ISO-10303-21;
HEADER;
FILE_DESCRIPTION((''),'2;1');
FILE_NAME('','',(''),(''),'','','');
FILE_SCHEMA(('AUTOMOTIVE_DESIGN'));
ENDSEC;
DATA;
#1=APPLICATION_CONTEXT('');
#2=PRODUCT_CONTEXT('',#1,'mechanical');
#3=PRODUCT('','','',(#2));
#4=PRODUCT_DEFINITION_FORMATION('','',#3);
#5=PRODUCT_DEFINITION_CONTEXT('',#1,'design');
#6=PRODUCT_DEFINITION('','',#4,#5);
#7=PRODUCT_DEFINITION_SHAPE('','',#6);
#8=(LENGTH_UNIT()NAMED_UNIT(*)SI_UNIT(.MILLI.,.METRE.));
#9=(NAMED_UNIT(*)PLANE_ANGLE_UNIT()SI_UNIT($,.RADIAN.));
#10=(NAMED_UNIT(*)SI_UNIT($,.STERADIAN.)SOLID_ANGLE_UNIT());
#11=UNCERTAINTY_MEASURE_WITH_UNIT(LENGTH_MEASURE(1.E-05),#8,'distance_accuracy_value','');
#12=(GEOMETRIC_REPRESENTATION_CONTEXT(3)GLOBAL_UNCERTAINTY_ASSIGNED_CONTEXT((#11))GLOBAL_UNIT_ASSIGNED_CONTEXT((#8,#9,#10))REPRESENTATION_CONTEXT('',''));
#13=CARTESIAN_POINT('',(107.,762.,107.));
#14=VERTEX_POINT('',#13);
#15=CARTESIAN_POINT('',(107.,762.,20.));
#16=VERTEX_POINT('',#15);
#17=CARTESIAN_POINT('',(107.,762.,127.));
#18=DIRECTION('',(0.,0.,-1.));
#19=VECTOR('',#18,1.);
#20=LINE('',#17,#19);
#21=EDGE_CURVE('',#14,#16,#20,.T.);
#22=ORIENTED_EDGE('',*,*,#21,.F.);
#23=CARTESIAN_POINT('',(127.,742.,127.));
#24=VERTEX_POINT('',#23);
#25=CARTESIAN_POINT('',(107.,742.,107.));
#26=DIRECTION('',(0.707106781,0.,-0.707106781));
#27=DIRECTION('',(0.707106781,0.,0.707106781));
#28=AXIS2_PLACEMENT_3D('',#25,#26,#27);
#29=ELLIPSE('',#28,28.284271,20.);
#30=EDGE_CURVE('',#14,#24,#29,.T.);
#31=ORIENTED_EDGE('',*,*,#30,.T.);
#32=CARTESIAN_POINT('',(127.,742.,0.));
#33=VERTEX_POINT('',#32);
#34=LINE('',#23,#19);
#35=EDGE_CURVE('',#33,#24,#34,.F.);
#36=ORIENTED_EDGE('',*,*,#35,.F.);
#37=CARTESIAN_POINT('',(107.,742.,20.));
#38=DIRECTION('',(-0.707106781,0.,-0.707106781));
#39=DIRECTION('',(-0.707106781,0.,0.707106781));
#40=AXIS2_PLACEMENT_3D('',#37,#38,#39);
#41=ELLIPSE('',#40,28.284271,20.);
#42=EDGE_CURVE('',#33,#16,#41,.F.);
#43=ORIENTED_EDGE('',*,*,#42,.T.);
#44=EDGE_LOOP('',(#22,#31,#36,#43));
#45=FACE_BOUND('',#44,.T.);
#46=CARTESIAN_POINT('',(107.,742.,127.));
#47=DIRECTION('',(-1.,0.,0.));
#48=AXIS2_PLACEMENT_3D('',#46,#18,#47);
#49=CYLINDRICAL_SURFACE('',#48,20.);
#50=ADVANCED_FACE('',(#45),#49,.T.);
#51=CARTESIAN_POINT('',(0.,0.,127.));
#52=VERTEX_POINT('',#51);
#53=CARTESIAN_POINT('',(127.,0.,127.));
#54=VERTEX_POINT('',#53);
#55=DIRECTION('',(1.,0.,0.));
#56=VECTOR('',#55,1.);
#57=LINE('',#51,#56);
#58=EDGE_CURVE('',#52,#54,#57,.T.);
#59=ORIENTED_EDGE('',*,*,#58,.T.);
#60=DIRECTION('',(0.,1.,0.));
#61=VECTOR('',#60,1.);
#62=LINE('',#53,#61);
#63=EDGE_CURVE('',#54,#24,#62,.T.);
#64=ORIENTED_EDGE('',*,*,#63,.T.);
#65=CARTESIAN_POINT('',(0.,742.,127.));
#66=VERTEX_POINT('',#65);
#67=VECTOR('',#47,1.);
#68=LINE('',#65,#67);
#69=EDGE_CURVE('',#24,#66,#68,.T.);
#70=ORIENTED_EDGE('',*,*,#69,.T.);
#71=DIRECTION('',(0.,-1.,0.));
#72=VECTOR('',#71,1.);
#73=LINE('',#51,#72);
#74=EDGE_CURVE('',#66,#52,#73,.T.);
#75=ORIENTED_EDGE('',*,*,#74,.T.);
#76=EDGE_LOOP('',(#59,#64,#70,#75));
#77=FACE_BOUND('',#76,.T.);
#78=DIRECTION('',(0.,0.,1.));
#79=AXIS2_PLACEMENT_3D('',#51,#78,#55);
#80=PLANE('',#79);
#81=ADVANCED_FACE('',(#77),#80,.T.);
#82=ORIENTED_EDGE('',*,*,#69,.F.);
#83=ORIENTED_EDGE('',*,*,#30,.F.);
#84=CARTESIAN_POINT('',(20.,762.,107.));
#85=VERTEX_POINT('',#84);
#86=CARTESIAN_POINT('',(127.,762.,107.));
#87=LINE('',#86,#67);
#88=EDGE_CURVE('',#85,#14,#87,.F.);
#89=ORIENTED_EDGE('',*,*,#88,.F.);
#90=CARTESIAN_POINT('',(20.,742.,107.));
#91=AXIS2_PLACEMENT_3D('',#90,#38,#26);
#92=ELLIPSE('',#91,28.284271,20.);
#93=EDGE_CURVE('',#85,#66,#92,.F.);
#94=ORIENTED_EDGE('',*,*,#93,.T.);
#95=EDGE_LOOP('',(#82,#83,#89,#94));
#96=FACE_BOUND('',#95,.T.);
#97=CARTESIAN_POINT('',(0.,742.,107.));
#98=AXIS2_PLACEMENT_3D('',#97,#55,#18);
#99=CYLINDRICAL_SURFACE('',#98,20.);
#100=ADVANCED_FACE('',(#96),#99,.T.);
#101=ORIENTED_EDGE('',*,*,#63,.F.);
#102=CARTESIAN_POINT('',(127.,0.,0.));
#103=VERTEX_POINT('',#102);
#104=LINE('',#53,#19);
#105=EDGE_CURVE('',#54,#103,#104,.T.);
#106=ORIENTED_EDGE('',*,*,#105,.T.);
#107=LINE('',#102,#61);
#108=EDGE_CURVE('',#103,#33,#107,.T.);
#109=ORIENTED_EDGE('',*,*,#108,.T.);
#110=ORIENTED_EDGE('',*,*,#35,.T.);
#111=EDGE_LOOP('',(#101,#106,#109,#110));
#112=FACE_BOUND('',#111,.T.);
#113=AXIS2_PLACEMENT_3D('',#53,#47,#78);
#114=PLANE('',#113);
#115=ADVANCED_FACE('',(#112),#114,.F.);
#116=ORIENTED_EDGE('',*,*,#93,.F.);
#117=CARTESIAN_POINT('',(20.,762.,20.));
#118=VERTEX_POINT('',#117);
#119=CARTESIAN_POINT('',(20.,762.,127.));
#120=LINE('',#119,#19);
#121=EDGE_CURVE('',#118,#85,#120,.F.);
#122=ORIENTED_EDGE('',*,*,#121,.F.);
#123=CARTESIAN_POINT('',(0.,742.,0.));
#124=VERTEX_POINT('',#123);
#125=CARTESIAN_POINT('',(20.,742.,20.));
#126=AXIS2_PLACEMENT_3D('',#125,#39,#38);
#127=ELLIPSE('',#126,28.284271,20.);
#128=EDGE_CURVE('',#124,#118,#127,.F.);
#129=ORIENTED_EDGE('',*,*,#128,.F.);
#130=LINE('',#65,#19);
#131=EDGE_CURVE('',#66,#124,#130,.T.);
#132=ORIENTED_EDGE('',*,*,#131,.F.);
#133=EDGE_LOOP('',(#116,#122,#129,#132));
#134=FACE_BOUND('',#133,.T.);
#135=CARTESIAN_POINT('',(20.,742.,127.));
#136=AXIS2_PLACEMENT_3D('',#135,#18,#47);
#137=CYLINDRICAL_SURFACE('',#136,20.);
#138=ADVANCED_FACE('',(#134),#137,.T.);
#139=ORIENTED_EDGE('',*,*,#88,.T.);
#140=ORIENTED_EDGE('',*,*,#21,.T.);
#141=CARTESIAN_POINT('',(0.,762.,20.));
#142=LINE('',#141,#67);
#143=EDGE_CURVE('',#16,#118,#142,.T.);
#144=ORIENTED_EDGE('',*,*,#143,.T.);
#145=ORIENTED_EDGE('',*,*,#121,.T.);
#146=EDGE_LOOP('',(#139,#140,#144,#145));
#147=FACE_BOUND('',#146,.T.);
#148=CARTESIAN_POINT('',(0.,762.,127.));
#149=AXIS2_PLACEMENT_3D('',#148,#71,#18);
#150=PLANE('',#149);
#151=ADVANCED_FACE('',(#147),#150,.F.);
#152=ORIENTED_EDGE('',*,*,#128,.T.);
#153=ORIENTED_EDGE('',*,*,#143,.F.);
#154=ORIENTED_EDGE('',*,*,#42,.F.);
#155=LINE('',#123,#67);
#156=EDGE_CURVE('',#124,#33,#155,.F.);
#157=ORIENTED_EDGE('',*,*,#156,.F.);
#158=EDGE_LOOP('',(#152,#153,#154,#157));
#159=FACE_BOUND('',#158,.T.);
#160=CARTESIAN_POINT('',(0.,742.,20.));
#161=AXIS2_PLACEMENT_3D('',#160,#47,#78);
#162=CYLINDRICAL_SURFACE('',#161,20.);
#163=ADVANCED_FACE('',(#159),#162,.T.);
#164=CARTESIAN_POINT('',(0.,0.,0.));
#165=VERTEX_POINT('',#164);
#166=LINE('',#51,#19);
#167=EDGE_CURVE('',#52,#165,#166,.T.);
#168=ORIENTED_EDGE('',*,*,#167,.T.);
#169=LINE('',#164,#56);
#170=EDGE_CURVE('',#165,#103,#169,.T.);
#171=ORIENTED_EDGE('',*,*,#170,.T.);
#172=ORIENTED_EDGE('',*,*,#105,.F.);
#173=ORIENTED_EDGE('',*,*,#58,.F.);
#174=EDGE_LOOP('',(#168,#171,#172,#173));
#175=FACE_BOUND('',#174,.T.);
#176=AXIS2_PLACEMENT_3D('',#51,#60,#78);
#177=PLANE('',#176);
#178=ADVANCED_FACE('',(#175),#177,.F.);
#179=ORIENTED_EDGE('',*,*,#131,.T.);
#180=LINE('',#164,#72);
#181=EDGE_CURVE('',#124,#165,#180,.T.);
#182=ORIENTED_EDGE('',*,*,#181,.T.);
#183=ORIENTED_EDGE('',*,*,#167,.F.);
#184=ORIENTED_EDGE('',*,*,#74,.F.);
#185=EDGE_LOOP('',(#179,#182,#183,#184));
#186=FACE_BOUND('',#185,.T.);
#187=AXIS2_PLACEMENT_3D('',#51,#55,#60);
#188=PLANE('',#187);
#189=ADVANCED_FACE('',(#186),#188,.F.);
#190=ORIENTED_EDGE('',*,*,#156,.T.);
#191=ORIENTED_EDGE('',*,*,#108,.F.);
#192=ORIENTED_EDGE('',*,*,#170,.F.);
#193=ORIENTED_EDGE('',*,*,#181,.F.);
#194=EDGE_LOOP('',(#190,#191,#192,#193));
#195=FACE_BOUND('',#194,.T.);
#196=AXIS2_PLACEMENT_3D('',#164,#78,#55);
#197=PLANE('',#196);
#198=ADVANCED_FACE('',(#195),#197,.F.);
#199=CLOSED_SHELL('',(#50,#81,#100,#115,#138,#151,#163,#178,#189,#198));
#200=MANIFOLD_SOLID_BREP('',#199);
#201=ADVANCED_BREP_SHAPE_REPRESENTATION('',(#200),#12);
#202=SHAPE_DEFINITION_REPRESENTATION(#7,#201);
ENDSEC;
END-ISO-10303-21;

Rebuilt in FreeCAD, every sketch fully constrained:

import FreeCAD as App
import Part
import Sketcher
from FreeCAD import Vector
Q = App.Units.Quantity


def edges_at(feature, points):
    """Names of the edges that pass closest to the given points."""
    edges = feature.Shape.Edges
    near = lambda p: min(range(len(edges)), key=lambda i: edges[i].distToShape(Part.Vertex(*p))[0])
    return sorted({f"Edge{near(p) + 1}" for p in points})

doc = App.newDocument("Part")
params = doc.addObject("Spreadsheet::Sheet", "Params")
for row, (alias, value) in enumerate([
    ("sketch1_width", "5 in"),
    ("sketch1_height", "30 in"),
    ("pad1_length", "5 in"),
    ("fillet_radius", "20 mm"),
], start=1):
    params.set(f"A{row}", alias)
    params.set(f"B{row}", "=" + value)
    params.setAlias(f"B{row}", alias)

body = doc.addObject("PartDesign::Body", "Body")

# Sketch on XY plane
sketch1 = body.newObject("Sketcher::SketchObject", "Sketch")
sketch1.AttachmentSupport = (doc.getObject("XY_Plane"), [""])
sketch1.MapMode = "FlatFace"
sketch1.addGeometry([
    Part.LineSegment(Vector(0, 762, 0), Vector(0, 0, 0)),
    Part.LineSegment(Vector(0, 0, 0), Vector(127, 0, 0)),
    Part.LineSegment(Vector(127, 0, 0), Vector(127, 762, 0)),
    Part.LineSegment(Vector(127, 762, 0), Vector(0, 762, 0)),
], False)
sketch1.addConstraint([
    Sketcher.Constraint("Coincident", 0, 2, 1, 1),
    Sketcher.Constraint("Coincident", 1, 2, 2, 1),
    Sketcher.Constraint("Coincident", 2, 2, 3, 1),
    Sketcher.Constraint("Coincident", 3, 2, 0, 1),
    Sketcher.Constraint("Vertical", 0),
    Sketcher.Constraint("Horizontal", 1),
    Sketcher.Constraint("Vertical", 2),
    Sketcher.Constraint("Horizontal", 3),
    Sketcher.Constraint("Coincident", 0, 2, -1, 1),
    Sketcher.Constraint("DistanceX", 1, 1, 1, 2, Q("5 in")),
    Sketcher.Constraint("DistanceY", 0, 2, 0, 1, Q("30 in")),
])
sketch1.setExpression("Constraints[9]", "Params.sketch1_width")
sketch1.setExpression("Constraints[10]", "Params.sketch1_height")
pad1 = body.newObject("PartDesign::Pad", "Pad")
pad1.Profile = sketch1
pad1.setExpression("Length", "Params.pad1_length")
doc.recompute()

fillet = body.newObject("PartDesign::Fillet", "Fillet")
fillet.Base = (pad1, edges_at(pad1, [
    (63.5, 762, 127),
    (63.5, 762, 0),
    (0, 762, 63.5),
    (127, 762, 63.5),
]))
fillet.setExpression("Radius", "Params.fillet_radius")

doc.recompute()
